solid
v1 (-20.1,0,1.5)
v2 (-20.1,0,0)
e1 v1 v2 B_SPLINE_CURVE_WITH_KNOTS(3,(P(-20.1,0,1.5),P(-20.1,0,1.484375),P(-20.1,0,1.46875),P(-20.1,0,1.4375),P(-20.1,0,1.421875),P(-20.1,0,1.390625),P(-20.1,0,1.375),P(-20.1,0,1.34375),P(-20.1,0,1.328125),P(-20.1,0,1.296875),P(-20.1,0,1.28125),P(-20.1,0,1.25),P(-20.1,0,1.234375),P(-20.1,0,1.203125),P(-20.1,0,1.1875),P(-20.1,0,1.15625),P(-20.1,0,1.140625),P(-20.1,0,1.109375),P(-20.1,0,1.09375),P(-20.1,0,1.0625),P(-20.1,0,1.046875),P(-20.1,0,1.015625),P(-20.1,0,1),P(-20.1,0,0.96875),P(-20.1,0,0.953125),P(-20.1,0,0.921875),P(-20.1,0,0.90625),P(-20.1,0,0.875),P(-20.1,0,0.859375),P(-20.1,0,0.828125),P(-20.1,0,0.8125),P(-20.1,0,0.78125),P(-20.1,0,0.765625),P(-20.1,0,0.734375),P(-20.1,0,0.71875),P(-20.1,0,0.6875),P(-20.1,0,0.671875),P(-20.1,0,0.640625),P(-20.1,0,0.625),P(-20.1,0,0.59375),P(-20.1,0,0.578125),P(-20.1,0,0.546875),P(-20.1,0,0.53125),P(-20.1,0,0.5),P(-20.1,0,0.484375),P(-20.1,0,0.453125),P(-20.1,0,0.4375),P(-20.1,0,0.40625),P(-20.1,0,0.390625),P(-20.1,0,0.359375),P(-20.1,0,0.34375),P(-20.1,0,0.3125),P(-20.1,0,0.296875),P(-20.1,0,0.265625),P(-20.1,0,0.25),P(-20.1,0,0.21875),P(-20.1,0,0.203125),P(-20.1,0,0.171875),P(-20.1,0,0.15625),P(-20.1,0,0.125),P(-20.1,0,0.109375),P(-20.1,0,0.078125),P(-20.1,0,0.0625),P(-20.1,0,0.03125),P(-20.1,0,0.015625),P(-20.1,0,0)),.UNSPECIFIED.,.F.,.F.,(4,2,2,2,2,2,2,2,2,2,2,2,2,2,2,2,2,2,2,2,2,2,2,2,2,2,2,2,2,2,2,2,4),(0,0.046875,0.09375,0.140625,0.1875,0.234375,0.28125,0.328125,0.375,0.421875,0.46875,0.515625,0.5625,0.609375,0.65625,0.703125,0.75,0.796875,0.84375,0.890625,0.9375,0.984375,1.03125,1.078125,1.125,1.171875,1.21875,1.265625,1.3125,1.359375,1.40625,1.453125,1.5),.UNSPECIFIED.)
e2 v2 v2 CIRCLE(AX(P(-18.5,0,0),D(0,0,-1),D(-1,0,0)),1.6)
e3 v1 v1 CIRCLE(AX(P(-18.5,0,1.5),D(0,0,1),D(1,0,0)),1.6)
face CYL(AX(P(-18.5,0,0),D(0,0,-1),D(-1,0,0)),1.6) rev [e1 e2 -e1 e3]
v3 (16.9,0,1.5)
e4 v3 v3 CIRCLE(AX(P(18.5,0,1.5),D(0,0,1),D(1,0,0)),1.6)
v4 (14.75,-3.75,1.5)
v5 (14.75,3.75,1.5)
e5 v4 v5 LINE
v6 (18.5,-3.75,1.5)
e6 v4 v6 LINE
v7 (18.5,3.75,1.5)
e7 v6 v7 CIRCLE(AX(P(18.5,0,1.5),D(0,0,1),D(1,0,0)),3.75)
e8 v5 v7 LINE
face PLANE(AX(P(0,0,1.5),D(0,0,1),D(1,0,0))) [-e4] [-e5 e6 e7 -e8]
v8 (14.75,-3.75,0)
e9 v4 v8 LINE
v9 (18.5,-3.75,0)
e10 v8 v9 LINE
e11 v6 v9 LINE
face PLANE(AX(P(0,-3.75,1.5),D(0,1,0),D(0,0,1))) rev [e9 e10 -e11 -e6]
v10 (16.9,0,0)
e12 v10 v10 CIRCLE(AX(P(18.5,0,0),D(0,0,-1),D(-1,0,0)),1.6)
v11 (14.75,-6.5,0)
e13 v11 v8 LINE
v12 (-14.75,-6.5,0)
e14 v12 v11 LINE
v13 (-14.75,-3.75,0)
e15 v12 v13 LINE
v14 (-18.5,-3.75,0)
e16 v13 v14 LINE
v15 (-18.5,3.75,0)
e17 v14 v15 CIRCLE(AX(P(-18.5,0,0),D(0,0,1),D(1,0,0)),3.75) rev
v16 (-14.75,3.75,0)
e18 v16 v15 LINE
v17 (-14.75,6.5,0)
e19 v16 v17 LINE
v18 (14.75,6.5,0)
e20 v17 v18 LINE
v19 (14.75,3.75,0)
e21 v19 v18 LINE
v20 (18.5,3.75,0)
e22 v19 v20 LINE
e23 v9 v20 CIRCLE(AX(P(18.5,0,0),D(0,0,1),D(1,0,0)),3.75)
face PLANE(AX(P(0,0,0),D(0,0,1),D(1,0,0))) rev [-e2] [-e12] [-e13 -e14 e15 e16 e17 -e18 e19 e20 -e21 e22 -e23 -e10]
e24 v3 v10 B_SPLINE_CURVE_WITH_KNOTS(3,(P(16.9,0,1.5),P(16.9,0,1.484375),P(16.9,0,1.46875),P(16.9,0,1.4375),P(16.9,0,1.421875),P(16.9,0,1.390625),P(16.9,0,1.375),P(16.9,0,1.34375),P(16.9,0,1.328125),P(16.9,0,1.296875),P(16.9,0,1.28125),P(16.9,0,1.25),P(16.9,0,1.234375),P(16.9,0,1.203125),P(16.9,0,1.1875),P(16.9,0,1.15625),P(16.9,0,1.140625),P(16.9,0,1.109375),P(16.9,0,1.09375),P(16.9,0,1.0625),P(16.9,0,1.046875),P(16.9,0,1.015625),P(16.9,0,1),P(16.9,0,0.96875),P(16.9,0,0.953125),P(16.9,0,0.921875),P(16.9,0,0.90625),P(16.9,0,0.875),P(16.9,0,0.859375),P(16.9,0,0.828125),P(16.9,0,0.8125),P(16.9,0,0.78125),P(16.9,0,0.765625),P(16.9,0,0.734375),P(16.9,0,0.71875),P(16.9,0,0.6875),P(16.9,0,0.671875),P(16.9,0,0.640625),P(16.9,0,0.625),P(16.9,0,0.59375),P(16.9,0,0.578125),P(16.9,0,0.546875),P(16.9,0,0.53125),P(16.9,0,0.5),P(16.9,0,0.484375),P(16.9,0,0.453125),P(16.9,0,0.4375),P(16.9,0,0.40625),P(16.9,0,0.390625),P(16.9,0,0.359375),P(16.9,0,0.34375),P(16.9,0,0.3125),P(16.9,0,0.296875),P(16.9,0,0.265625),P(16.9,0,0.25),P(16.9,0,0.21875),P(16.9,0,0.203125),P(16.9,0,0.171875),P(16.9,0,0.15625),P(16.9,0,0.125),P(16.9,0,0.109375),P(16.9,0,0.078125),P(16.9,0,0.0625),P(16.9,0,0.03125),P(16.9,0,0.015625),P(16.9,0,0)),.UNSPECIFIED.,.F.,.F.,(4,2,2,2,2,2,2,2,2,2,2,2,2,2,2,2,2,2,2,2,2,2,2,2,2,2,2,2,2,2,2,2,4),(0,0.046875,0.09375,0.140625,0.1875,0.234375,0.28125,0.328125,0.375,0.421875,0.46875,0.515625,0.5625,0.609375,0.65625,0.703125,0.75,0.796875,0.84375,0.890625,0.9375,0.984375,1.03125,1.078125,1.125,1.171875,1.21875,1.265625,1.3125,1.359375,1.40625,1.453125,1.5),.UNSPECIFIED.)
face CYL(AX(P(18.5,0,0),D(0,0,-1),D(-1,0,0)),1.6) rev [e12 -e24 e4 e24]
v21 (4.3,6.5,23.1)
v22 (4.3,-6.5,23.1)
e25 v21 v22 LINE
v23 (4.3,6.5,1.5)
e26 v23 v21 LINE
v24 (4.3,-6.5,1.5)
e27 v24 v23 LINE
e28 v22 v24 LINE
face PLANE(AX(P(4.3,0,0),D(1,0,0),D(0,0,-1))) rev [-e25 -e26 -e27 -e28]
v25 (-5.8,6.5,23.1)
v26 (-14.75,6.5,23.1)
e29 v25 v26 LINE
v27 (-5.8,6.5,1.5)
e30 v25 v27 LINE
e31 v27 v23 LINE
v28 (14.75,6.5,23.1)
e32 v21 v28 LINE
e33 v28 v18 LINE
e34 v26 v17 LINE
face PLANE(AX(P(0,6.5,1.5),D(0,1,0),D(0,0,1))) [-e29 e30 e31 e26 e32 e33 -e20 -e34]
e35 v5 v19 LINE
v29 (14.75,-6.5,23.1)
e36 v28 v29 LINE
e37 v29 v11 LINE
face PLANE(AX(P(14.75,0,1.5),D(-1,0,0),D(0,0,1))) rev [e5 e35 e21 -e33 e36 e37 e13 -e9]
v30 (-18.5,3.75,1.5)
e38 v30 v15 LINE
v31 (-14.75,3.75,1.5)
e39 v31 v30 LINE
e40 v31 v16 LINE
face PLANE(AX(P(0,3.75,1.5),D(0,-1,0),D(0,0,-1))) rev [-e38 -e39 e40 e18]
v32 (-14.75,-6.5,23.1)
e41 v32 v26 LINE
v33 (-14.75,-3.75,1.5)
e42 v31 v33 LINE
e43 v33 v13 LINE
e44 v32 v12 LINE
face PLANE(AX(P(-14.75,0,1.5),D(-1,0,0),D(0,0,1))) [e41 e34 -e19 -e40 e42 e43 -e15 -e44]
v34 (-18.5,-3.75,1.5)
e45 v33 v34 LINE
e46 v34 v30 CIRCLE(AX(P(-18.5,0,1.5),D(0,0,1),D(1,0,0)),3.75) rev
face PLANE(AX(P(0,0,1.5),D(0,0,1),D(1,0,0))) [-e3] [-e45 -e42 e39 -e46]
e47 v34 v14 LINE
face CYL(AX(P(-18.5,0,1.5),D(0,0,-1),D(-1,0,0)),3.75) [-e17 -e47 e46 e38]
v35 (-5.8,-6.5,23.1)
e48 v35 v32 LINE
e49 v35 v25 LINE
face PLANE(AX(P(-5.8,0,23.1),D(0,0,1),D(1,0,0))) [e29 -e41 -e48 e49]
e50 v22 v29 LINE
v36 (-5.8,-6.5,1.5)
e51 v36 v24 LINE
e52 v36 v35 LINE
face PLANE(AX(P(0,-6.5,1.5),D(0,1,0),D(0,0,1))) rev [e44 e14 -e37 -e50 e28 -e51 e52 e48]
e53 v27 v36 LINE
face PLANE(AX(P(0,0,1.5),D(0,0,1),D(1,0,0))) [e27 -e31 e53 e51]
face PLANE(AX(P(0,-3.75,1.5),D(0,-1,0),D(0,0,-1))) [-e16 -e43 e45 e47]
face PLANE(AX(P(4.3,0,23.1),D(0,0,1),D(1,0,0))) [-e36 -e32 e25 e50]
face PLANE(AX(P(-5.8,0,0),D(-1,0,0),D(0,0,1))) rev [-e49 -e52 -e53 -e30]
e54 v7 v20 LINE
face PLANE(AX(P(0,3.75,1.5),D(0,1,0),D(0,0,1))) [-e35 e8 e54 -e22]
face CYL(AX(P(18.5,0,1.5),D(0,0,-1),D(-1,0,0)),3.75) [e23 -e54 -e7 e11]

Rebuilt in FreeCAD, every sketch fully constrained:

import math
import FreeCAD as App
import Part
import Sketcher
Q = App.Units.Quantity

doc = App.newDocument("Part")
body = doc.addObject("PartDesign::Body", "Body")

sketch1 = body.newObject("Sketcher::SketchObject", "Sketch")
sketch1.AttachmentSupport = (doc.getObject("XY_Plane"), [""])
sketch1.MapMode = "FlatFace"
sketch1.addGeometry(Part.LineSegment(App.Vector(14.8, 6.5, 0), App.Vector(-14.8, 6.5, 0)), False)
sketch1.addGeometry(Part.LineSegment(App.Vector(-14.8, 6.5, 0), App.Vector(-14.8, 3.8, 0)), False)
sketch1.addGeometry(Part.LineSegment(App.Vector(-14.8, 3.8, 0), App.Vector(-18.5, 3.8, 0)), False)
sketch1.addGeometry(Part.ArcOfCircle(Part.Circle(App.Vector(-18.5, 0, 0), App.Vector(0, 0, 1), 3.8), math.radians(90), math.radians(270)), False)
sketch1.addGeometry(Part.LineSegment(App.Vector(-18.5, -3.8, 0), App.Vector(-14.8, -3.8, 0)), False)
sketch1.addGeometry(Part.LineSegment(App.Vector(-14.8, -3.8, 0), App.Vector(-14.8, -6.5, 0)), False)
sketch1.addGeometry(Part.LineSegment(App.Vector(-14.8, -6.5, 0), App.Vector(14.8, -6.5, 0)), False)
sketch1.addGeometry(Part.LineSegment(App.Vector(14.8, -6.5, 0), App.Vector(14.8, -3.8, 0)), False)
sketch1.addGeometry(Part.LineSegment(App.Vector(14.8, -3.8, 0), App.Vector(18.5, -3.8, 0)), False)
sketch1.addGeometry(Part.ArcOfCircle(Part.Circle(App.Vector(18.5, 0, 0), App.Vector(0, 0, 1), 3.8), math.radians(-90), math.radians(0)), False)
sketch1.addGeometry(Part.ArcOfCircle(Part.Circle(App.Vector(18.5, 0, 0), App.Vector(0, 0, 1), 3.8), math.radians(0), math.radians(90)), False)
sketch1.addGeometry(Part.LineSegment(App.Vector(18.5, 3.8, 0), App.Vector(14.8, 3.8, 0)), False)
sketch1.addGeometry(Part.LineSegment(App.Vector(14.8, 3.8, 0), App.Vector(14.8, 6.5, 0)), False)
sketch1.addConstraint(Sketcher.Constraint("Coincident", 0, 2, 1, 1))
sketch1.addConstraint(Sketcher.Constraint("Coincident", 1, 2, 2, 1))
sketch1.addConstraint(Sketcher.Constraint("Tangent", 2, 2, 3, 1))
sketch1.addConstraint(Sketcher.Constraint("Tangent", 3, 2, 4, 1))
sketch1.addConstraint(Sketcher.Constraint("Coincident", 4, 2, 5, 1))
sketch1.addConstraint(Sketcher.Constraint("Coincident", 5, 2, 6, 1))
sketch1.addConstraint(Sketcher.Constraint("Coincident", 6, 2, 7, 1))
sketch1.addConstraint(Sketcher.Constraint("Coincident", 7, 2, 8, 1))
sketch1.addConstraint(Sketcher.Constraint("Tangent", 8, 2, 9, 1))
sketch1.addConstraint(Sketcher.Constraint("Tangent", 9, 2, 10, 1))
sketch1.addConstraint(Sketcher.Constraint("Tangent", 10, 2, 11, 1))
sketch1.addConstraint(Sketcher.Constraint("Coincident", 11, 2, 12, 1))
sketch1.addConstraint(Sketcher.Constraint("Coincident", 12, 2, 0, 1))
sketch1.addConstraint(Sketcher.Constraint("Horizontal", 0))
sketch1.addConstraint(Sketcher.Constraint("Vertical", 1))
sketch1.addConstraint(Sketcher.Constraint("Horizontal", 2))
sketch1.addConstraint(Sketcher.Constraint("Horizontal", 4))
sketch1.addConstraint(Sketcher.Constraint("Vertical", 5))
sketch1.addConstraint(Sketcher.Constraint("Horizontal", 6))
sketch1.addConstraint(Sketcher.Constraint("Vertical", 7))
sketch1.addConstraint(Sketcher.Constraint("Horizontal", 8))
sketch1.addConstraint(Sketcher.Constraint("Horizontal", 11))
sketch1.addConstraint(Sketcher.Constraint("Vertical", 12))
sketch1.addConstraint(Sketcher.Constraint("Equal", 3, 9))
sketch1.addConstraint(Sketcher.Constraint("Equal", 9, 10))
sketch1.addConstraint(Sketcher.Constraint("Symmetric", 3, 3, 9, 3, -1, 1))
sketch1.addConstraint(Sketcher.Constraint("Symmetric", 0, 2, 6, 2, -1, 1))
sketch1.addConstraint(Sketcher.Constraint("Symmetric", 4, 2, 7, 2, -2))
sketch1.addConstraint(Sketcher.Constraint("PointOnObject", 9, 2, -1))
sketch1.addConstraint(Sketcher.Constraint("Vertical", 7, 2, 11, 2))
sketch1.addConstraint(Sketcher.Constraint("Radius", 3, Q("3.75 mm")))
sketch1.addConstraint(Sketcher.Constraint("DistanceX", 0, 2, 0, 1, Q("29.5 mm")))
sketch1.addConstraint(Sketcher.Constraint("DistanceX", 3, 3, 9, 3, Q("37 mm")))
sketch1.addConstraint(Sketcher.Constraint("DistanceY", 1, 2, 1, 1, Q("2.75 mm")))
pad1 = body.newObject("PartDesign::Pad", "Pad")
pad1.Profile = sketch1
pad1.Length = 1.5

sketch2 = body.newObject("Sketcher::SketchObject", "Sketch001")
sketch2.AttachmentSupport = (doc.getObject("YZ_Plane"), [""])
sketch2.MapMode = "FlatFace"
sketch2.AttachmentOffset = App.Placement(App.Vector(0, 0, 14.75), App.Rotation())
sketch2.addGeometry(Part.LineSegment(App.Vector(6, 23, 0), App.Vector(-6, 23, 0)), False)
sketch2.addGeometry(Part.LineSegment(App.Vector(-6, 23, 0), App.Vector(-6, 2, 0)), False)
sketch2.addGeometry(Part.LineSegment(App.Vector(-6, 2, 0), App.Vector(6, 2, 0)), False)
sketch2.addGeometry(Part.LineSegment(App.Vector(6, 2, 0), App.Vector(6, 23, 0)), False)
sketch2.addConstraint(Sketcher.Constraint("Coincident", 0, 2, 1, 1))
sketch2.addConstraint(Sketcher.Constraint("Coincident", 1, 2, 2, 1))
sketch2.addConstraint(Sketcher.Constraint("Coincident", 2, 2, 3, 1))
sketch2.addConstraint(Sketcher.Constraint("Coincident", 3, 2, 0, 1))
sketch2.addConstraint(Sketcher.Constraint("Horizontal", 0))
sketch2.addConstraint(Sketcher.Constraint("Vertical", 1))
sketch2.addConstraint(Sketcher.Constraint("Horizontal", 2))
sketch2.addConstraint(Sketcher.Constraint("Vertical", 3))
sketch2.addConstraint(Sketcher.Constraint("DistanceX", 0, 2, 0, 1, Q("13 mm")))
sketch2.addConstraint(Sketcher.Constraint("DistanceY", 1, 2, 1, 1, Q("21.6 mm")))
sketch2.addConstraint(Sketcher.Constraint("DistanceX", 0, 2, -1, 1, Q("6.5 mm")))
sketch2.addConstraint(Sketcher.Constraint("DistanceY", -1, 1, 0, 2, Q("23.1 mm")))
pad2 = body.newObject("PartDesign::Pad", "Pad001")
pad2.Profile = sketch2
pad2.Length = 10.45
pad2.Reversed = True

sketch3 = body.newObject("Sketcher::SketchObject", "Sketch002")
sketch3.AttachmentSupport = (doc.getObject("YZ_Plane"), [""])
sketch3.MapMode = "FlatFace"
sketch3.AttachmentOffset = App.Placement(App.Vector(0, 0, -14.75), App.Rotation())
sketch3.addGeometry(Part.LineSegment(App.Vector(6, 23, 0), App.Vector(-6, 23, 0)), False)
sketch3.addGeometry(Part.LineSegment(App.Vector(-6, 23, 0), App.Vector(-6, 2, 0)), False)
sketch3.addGeometry(Part.LineSegment(App.Vector(-6, 2, 0), App.Vector(6, 2, 0)), False)
sketch3.addGeometry(Part.LineSegment(App.Vector(6, 2, 0), App.Vector(6, 23, 0)), False)
sketch3.addConstraint(Sketcher.Constraint("Coincident", 0, 2, 1, 1))
sketch3.addConstraint(Sketcher.Constraint("Coincident", 1, 2, 2, 1))
sketch3.addConstraint(Sketcher.Constraint("Coincident", 2, 2, 3, 1))
sketch3.addConstraint(Sketcher.Constraint("Coincident", 3, 2, 0, 1))
sketch3.addConstraint(Sketcher.Constraint("Horizontal", 0))
sketch3.addConstraint(Sketcher.Constraint("Vertical", 1))
sketch3.addConstraint(Sketcher.Constraint("Horizontal", 2))
sketch3.addConstraint(Sketcher.Constraint("Vertical", 3))
sketch3.addConstraint(Sketcher.Constraint("DistanceX", 0, 2, 0, 1, Q("13 mm")))
sketch3.addConstraint(Sketcher.Constraint("DistanceY", 1, 2, 1, 1, Q("21.6 mm")))
sketch3.addConstraint(Sketcher.Constraint("DistanceX", 0, 2, -1, 1, Q("6.5 mm")))
sketch3.addConstraint(Sketcher.Constraint("DistanceY", -1, 1, 0, 2, Q("23.1 mm")))
pad3 = body.newObject("PartDesign::Pad", "Pad002")
pad3.Profile = sketch3
pad3.Length = 8.95

sketch4 = body.newObject("Sketcher::SketchObject", "Sketch003")
sketch4.AttachmentSupport = (doc.getObject("XY_Plane"), [""])
sketch4.MapMode = "FlatFace"
sketch4.addGeometry(Part.Circle(App.Vector(18.5, 0, 0), App.Vector(0, 0, 1), 1.6), False)
sketch4.addGeometry(Part.Circle(App.Vector(-18.5, 0, 0), App.Vector(0, 0, 1), 1.6), False)
sketch4.addConstraint(Sketcher.Constraint("Equal", 0, 1))
sketch4.addConstraint(Sketcher.Constraint("Symmetric", 0, 3, 1, 3, -1, 1))
sketch4.addConstraint(Sketcher.Constraint("PointOnObject", 0, 3, -1))
sketch4.addConstraint(Sketcher.Constraint("Diameter", 0, Q("3.2 mm")))
sketch4.addConstraint(Sketcher.Constraint("DistanceX", 1, 3, 0, 3, Q("37 mm")))
doc.recompute()
hole = body.newObject("PartDesign::Hole", "Hole")
hole.Profile = sketch4
hole.ThreadType = "None"
hole.Diameter = 3.2
hole.DepthType = "Dimension"
hole.Depth = 4
hole.DrillPoint = "Angled"
hole.DrillPointAngle = 118
hole.Reversed = True

doc.recompute()
